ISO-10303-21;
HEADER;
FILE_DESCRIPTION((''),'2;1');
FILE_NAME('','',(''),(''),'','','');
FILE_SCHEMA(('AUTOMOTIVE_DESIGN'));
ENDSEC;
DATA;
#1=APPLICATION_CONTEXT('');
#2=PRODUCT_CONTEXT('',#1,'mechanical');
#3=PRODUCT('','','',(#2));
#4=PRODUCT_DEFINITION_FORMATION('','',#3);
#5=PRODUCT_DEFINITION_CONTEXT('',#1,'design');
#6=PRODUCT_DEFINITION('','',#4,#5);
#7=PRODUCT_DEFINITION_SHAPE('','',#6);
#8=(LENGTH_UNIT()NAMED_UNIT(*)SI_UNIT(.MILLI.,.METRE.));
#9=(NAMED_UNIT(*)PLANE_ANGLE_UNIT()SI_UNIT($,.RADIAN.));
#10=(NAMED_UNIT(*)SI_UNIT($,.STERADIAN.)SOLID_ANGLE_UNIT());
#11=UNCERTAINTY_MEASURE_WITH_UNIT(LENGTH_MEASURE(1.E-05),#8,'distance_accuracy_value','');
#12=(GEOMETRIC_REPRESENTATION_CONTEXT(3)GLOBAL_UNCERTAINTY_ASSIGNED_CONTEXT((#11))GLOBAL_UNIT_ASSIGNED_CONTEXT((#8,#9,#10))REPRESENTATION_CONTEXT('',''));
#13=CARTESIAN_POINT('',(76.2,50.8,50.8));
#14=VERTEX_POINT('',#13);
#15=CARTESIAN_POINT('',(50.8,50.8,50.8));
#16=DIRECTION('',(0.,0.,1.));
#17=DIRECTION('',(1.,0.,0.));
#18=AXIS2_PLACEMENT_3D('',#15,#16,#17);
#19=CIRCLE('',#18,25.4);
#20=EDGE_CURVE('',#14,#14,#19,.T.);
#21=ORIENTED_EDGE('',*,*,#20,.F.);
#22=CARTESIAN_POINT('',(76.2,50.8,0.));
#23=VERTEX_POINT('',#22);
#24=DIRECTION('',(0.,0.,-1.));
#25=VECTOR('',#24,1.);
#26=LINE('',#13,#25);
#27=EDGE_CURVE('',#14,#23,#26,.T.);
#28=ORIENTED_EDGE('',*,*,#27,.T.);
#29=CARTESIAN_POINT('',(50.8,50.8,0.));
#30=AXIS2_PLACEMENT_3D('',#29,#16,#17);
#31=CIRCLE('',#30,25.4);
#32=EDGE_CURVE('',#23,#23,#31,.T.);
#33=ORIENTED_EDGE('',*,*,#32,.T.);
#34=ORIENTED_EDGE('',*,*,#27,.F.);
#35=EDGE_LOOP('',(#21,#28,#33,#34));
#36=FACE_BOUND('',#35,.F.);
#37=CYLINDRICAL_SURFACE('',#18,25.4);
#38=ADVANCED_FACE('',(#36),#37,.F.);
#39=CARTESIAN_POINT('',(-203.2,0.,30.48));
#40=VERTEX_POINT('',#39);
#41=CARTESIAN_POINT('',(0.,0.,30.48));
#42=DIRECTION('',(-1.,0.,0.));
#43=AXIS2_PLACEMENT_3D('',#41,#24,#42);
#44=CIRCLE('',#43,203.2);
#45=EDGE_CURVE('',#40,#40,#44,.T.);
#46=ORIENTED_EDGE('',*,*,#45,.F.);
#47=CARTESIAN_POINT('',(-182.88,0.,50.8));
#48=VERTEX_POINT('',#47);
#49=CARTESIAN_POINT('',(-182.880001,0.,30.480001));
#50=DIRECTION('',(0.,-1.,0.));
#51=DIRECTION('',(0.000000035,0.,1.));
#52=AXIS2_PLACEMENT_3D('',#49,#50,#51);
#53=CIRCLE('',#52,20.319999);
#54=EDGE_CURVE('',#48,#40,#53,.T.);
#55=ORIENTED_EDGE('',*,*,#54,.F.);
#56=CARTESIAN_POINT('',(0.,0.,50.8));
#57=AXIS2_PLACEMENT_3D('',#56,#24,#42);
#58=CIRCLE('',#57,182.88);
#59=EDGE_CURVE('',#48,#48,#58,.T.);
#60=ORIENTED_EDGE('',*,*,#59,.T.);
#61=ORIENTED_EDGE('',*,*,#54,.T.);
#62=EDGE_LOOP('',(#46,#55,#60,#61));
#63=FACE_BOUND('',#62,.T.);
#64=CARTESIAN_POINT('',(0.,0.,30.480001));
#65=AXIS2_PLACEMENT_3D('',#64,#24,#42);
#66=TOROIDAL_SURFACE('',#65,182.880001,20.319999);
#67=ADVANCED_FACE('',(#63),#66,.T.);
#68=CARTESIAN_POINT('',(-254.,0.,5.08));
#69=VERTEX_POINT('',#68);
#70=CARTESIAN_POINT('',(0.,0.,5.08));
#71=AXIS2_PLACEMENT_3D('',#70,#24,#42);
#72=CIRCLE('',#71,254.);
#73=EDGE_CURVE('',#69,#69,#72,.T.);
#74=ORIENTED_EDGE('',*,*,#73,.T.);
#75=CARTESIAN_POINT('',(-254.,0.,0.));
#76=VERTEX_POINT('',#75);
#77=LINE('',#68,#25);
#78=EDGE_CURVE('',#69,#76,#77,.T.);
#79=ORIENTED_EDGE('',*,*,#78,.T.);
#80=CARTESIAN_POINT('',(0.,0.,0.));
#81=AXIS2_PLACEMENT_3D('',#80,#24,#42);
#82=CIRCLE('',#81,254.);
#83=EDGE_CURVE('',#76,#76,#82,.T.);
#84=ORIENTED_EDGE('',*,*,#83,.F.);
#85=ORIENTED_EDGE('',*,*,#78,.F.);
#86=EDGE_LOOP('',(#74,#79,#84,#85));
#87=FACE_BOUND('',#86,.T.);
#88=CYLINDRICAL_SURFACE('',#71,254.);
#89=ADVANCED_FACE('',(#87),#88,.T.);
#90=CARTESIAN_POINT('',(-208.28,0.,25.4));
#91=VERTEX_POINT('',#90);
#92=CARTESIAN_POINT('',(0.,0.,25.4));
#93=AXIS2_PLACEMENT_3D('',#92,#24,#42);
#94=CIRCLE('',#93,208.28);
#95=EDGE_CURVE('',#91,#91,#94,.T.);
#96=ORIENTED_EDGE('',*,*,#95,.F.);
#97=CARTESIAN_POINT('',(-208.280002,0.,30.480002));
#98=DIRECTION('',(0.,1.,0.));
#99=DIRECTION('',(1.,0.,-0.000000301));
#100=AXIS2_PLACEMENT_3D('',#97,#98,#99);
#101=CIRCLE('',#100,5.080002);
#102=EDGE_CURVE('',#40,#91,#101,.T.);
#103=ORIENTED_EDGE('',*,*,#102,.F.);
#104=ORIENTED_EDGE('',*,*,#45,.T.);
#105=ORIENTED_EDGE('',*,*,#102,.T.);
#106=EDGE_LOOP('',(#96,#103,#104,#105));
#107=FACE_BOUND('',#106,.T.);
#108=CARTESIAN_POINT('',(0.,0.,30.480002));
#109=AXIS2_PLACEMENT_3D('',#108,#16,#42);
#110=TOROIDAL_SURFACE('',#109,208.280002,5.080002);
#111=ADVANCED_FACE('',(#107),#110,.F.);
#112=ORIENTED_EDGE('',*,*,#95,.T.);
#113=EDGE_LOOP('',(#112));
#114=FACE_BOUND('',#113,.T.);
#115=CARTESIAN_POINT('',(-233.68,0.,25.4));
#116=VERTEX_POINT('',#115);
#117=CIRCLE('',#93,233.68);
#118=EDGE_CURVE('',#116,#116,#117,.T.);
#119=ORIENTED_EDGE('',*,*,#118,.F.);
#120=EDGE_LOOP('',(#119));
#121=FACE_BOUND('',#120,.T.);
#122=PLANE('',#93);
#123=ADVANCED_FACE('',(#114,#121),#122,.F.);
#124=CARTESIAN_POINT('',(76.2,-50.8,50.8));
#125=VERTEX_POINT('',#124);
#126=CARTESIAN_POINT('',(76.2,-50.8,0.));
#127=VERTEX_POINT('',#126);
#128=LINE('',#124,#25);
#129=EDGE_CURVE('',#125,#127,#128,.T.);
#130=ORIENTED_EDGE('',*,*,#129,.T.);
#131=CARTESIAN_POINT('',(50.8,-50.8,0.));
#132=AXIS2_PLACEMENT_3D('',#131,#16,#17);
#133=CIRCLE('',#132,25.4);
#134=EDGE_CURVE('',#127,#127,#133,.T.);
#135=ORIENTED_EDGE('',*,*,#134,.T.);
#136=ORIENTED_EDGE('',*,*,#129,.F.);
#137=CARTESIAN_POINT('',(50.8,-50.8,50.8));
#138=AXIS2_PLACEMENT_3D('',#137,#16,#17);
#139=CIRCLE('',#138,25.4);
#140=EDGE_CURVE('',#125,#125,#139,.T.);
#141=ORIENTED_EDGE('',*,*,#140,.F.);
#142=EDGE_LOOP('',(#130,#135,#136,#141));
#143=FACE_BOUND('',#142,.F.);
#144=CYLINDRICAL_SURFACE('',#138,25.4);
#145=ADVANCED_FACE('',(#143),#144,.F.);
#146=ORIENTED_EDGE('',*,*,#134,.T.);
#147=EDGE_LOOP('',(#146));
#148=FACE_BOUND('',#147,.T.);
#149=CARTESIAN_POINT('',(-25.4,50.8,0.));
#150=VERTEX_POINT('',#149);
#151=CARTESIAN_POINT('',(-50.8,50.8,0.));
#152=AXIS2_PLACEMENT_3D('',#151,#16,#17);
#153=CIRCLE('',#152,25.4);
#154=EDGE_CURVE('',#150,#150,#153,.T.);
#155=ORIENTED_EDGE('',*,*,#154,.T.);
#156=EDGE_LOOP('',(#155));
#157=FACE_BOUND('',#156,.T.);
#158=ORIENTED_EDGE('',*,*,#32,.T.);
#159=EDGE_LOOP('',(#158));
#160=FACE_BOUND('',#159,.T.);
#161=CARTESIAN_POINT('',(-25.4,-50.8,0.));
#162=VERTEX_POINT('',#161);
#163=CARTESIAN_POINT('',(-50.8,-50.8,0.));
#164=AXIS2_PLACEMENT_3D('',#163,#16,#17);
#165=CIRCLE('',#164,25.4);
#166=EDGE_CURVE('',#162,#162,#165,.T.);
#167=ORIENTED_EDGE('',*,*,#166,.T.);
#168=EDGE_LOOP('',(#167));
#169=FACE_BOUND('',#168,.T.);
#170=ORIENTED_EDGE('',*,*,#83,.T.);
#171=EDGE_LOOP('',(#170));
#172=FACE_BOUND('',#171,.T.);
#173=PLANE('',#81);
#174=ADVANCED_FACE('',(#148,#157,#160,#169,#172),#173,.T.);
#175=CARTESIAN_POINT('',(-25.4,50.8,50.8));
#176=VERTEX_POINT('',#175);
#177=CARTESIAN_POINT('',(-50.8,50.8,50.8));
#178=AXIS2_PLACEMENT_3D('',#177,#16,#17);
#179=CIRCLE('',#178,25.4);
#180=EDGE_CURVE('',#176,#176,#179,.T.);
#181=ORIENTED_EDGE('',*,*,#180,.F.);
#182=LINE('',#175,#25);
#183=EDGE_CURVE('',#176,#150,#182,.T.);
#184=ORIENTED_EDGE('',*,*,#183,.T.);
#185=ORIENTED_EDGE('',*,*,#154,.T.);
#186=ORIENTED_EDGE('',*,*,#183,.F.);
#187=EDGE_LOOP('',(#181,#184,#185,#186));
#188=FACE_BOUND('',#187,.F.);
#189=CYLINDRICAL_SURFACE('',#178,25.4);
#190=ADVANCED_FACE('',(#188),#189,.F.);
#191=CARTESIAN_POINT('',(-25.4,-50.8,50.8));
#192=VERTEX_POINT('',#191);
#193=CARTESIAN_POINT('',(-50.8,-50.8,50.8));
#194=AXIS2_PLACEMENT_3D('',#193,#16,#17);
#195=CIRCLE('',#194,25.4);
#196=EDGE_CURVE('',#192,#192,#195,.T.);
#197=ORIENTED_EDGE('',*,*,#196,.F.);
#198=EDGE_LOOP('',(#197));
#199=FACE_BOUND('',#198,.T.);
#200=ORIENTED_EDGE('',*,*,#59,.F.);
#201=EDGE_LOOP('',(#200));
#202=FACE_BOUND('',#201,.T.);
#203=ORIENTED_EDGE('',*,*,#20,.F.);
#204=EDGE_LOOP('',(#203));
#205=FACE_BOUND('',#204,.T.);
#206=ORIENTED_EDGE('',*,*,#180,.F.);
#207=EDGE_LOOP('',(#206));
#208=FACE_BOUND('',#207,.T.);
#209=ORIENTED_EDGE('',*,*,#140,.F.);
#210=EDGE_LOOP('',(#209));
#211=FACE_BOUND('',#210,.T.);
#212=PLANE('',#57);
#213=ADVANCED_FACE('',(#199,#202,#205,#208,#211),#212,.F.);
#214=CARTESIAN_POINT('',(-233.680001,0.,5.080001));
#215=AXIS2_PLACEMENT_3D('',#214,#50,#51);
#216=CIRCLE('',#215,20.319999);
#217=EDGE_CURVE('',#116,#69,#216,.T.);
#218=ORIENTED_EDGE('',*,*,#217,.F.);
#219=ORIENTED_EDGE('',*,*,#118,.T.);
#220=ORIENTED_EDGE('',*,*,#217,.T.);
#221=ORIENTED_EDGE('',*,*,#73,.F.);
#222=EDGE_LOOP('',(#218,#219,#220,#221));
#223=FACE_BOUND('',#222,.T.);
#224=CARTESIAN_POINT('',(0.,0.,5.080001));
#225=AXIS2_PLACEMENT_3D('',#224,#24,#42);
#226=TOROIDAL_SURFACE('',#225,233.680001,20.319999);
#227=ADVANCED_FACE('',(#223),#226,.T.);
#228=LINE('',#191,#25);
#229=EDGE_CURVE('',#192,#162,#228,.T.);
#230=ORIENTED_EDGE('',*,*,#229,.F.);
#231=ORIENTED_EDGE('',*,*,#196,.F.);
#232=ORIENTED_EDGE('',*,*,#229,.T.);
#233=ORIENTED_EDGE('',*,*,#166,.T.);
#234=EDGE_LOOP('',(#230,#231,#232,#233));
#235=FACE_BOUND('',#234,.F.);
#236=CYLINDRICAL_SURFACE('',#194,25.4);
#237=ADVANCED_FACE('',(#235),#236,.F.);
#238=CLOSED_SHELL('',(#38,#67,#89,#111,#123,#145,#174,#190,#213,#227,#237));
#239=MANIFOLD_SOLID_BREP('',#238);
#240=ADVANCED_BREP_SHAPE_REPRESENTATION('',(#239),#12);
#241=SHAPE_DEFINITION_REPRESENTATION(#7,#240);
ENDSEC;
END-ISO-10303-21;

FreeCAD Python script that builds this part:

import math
import FreeCAD as App
import Part
import Sketcher
from FreeCAD import Vector
Q = App.Units.Quantity

doc = App.newDocument("Part")
params = doc.addObject("Spreadsheet::Sheet", "Params")
for row, (alias, value) in enumerate([
    ("sketch1_radius", "0.8 in"),
    ("sketch1_radius2", "0.2000001 in"),
    ("sketch1_width", "10 in"),
    ("sketch1_width2", "1 in"),
    ("sketch1_height", "2 in"),
    ("revolution_angle", "360 deg"),
    ("sketch2_diameter", "2 in"),
    ("pocket1_length", "2 in"),
], start=1):
    params.set(f"A{row}", alias)
    params.set(f"B{row}", "=" + value)
    params.setAlias(f"B{row}", alias)

body = doc.addObject("PartDesign::Body", "Body")

# Sketch on XZ plane
sketch1 = body.newObject("Sketcher::SketchObject", "Sketch")
sketch1.AttachmentSupport = (doc.getObject("XZ_Plane"), [""])
sketch1.MapMode = "FlatFace"
sketch1.addGeometry(Part.LineSegment(Vector(-254, 0, 0), Vector(0, 0, 0)), False)
sketch1.addGeometry(Part.LineSegment(Vector(0, 0, 0), Vector(0, 51, 0)), False)
sketch1.addGeometry(Part.LineSegment(Vector(0, 51, 0), Vector(-183, 51, 0)), False)
sketch1.addGeometry(Part.ArcOfCircle(Part.Circle(Vector(-183, 30, 0), Vector(0, 0, 1), 20), math.radians(90), math.radians(180)), False)
sketch1.addGeometry(Part.ArcOfCircle(Part.Circle(Vector(-208, 30, 0), Vector(0, 0, 1), 5), math.radians(-90), math.radians(0)), False)
sketch1.addGeometry(Part.LineSegment(Vector(-208, 25, 0), Vector(-234, 25, 0)), False)
sketch1.addGeometry(Part.ArcOfCircle(Part.Circle(Vector(-234, 5, 0), Vector(0, 0, 1), 20), math.radians(90), math.radians(180)), False)
sketch1.addGeometry(Part.LineSegment(Vector(-254, 5, 0), Vector(-254, 0, 0)), False)
sketch1.addConstraint(Sketcher.Constraint("Coincident", 0, 2, 1, 1))
sketch1.addConstraint(Sketcher.Constraint("Coincident", 1, 2, 2, 1))
sketch1.addConstraint(Sketcher.Constraint("Tangent", 2, 2, 3, 1))
sketch1.addConstraint(Sketcher.Constraint("Tangent", 3, 2, 4, 2))
sketch1.addConstraint(Sketcher.Constraint("Tangent", 4, 1, 5, 1))
sketch1.addConstraint(Sketcher.Constraint("Tangent", 5, 2, 6, 1))
sketch1.addConstraint(Sketcher.Constraint("Tangent", 6, 2, 7, 1))
sketch1.addConstraint(Sketcher.Constraint("Coincident", 7, 2, 0, 1))
sketch1.addConstraint(Sketcher.Constraint("Horizontal", 0))
sketch1.addConstraint(Sketcher.Constraint("Vertical", 1))
sketch1.addConstraint(Sketcher.Constraint("Horizontal", 2))
sketch1.addConstraint(Sketcher.Constraint("Horizontal", 5))
sketch1.addConstraint(Sketcher.Constraint("Vertical", 7))
sketch1.addConstraint(Sketcher.Constraint("Coincident", 0, 2, -1, 1))
sketch1.addConstraint(Sketcher.Constraint("Equal", 3, 6))
sketch1.addConstraint(Sketcher.Constraint("Horizontal", 3, 3, 4, 3))
sketch1.addConstraint(Sketcher.Constraint("Radius", 3, Q("0.8 in")))
sketch1.addConstraint(Sketcher.Constraint("Radius", 4, Q("0.2000001 in")))
sketch1.addConstraint(Sketcher.Constraint("DistanceX", 0, 1, 0, 2, Q("10 in")))
sketch1.addConstraint(Sketcher.Constraint("DistanceX", 5, 2, 5, 1, Q("1 in")))
sketch1.addConstraint(Sketcher.Constraint("DistanceY", 1, 1, 1, 2, Q("2 in")))
sketch1.setExpression("Constraints[16]", "Params.sketch1_radius")
sketch1.setExpression("Constraints[17]", "Params.sketch1_radius2")
sketch1.setExpression("Constraints[18]", "Params.sketch1_width")
sketch1.setExpression("Constraints[19]", "Params.sketch1_width2")
sketch1.setExpression("Constraints[20]", "Params.sketch1_height")
revolution = body.newObject("PartDesign::Revolution", "Revolution")
revolution.Profile = sketch1
revolution.ReferenceAxis = (sketch1, ["V_Axis"])
revolution.setExpression("Angle", "Params.revolution_angle")

# Sketch on XY plane
sketch2 = body.newObject("Sketcher::SketchObject", "Sketch001")
sketch2.AttachmentSupport = (doc.getObject("XY_Plane"), [""])
sketch2.MapMode = "FlatFace"
sketch2.AttachmentOffset = App.Placement(Vector(0, 0, 2 * 25.4), App.Rotation())
sketch2.addGeometry(Part.Circle(Vector(-51, 51, 0), Vector(0, 0, 1), 25), False)
sketch2.addGeometry(Part.Circle(Vector(51, 51, 0), Vector(0, 0, 1), 25), False)
sketch2.addGeometry(Part.Circle(Vector(-51, -51, 0), Vector(0, 0, 1), 25), False)
sketch2.addGeometry(Part.Circle(Vector(51, -51, 0), Vector(0, 0, 1), 25), False)
sketch2.addConstraint(Sketcher.Constraint("Equal", 0, 1))
sketch2.addConstraint(Sketcher.Constraint("Equal", 1, 2))
sketch2.addConstraint(Sketcher.Constraint("Equal", 2, 3))
sketch2.addConstraint(Sketcher.Constraint("Symmetric", 1, 3, 2, 3, -1, 1))
sketch2.addConstraint(Sketcher.Constraint("Symmetric", 0, 3, 3, 3, -1, 1))
sketch2.addConstraint(Sketcher.Constraint("Symmetric", 0, 3, 1, 3, -2))
sketch2.addConstraint(Sketcher.Constraint("Diameter", 0, Q("2 in")))
sketch2.addConstraint(Sketcher.Constraint("DistanceX", 0, 3, -1, 1, Q("2 in")))
sketch2.addConstraint(Sketcher.Constraint("DistanceY", -1, 1, 0, 3, Q("2 in")))
sketch2.setExpression("Constraints[6]", "Params.sketch2_diameter")
pocket1 = body.newObject("PartDesign::Pocket", "Pocket")
pocket1.Profile = sketch2
pocket1.setExpression("Length", "Params.pocket1_length")

doc.recompute()
